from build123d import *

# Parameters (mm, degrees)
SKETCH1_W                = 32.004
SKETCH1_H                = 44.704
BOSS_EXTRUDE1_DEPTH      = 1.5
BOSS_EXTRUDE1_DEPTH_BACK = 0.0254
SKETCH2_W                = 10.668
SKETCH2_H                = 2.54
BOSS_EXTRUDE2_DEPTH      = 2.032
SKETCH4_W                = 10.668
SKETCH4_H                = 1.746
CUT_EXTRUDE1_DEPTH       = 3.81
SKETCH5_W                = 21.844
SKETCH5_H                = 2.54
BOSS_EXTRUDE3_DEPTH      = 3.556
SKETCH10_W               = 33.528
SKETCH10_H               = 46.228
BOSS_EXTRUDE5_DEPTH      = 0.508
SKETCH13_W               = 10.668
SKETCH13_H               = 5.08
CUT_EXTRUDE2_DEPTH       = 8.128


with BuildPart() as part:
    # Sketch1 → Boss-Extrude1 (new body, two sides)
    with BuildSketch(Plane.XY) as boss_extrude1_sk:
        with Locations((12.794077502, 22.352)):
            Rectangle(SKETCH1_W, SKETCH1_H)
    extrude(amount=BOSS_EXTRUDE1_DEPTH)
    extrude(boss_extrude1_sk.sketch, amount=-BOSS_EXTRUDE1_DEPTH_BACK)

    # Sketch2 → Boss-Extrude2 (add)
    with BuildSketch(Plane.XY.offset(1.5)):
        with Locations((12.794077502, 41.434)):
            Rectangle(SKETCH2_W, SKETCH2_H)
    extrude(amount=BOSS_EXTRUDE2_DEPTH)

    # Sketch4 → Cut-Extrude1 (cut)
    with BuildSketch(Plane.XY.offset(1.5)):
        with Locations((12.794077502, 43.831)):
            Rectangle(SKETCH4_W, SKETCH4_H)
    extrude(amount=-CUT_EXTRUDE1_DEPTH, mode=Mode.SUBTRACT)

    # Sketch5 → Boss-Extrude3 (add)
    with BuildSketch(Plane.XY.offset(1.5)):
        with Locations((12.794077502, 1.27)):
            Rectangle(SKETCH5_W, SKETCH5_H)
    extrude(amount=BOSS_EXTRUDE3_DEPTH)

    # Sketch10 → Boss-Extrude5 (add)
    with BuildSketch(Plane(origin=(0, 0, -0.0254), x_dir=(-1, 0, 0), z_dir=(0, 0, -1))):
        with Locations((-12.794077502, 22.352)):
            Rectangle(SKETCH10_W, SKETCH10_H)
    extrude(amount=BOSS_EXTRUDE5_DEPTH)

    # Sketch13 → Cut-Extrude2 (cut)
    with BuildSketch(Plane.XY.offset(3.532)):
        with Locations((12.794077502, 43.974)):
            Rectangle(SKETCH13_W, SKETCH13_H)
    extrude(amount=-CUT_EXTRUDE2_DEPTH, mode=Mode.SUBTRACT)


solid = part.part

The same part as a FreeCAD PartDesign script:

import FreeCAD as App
import Part
import Sketcher
Q = App.Units.Quantity


def add_polygon(sketch, points):
    """Adds a closed chain of lines whose ends are joined by coincident constraints."""
    first, n = sketch.GeometryCount, len(points)
    for a, b in zip(points, points[1:] + points[:1]):
        sketch.addGeometry(Part.LineSegment(App.Vector(*a, 0), App.Vector(*b, 0)), False)
    for i in range(n):
        sketch.addConstraint(Sketcher.Constraint("Coincident", first + i, 2, first + (i + 1) % n, 1))

doc = App.newDocument("Part")
params = doc.addObject("Spreadsheet::Sheet", "Params")
for row, (alias, value) in enumerate([
    ("sketch1_width", "1.26 in"),
    ("sketch1_height", "1.76 in"),
    ("pad1_length", "1.5 mm"),
    ("pad1_length2", "0.001 in"),
    ("sketch2_height", "0.1 in"),
    ("sketch2_width", "0.42 in"),
    ("pad2_length", "0.08 in"),
    ("sketch3_width", "0.42 in"),
    ("pocket1_length", "0.15 in"),
    ("sketch4_height", "0.1 in"),
    ("sketch4_width", "0.86 in"),
    ("pad3_length", "0.14 in"),
    ("sketch5_width", "1.32 in"),
    ("sketch5_height", "1.82 in"),
    ("pad4_length", "0.02 in"),
    ("sketch6_height", "0.2 in"),
    ("sketch6_width", "0.42 in"),
    ("pocket2_length", "0.32 in"),
], start=1):
    params.set(f"A{row}", alias)
    params.set(f"B{row}", "=" + value)
    params.setAlias(f"B{row}", alias)

body = doc.addObject("PartDesign::Body", "Body")

# Sketch on XY plane
sketch1 = body.newObject("Sketcher::SketchObject", "Sketch")
sketch1.AttachmentSupport = (doc.getObject("XY_Plane"), [""])
sketch1.MapMode = "FlatFace"
add_polygon(sketch1, [(-3.207922, 44.704), (-3.207922, 0), (28.796078, 0), (28.796078, 44.704)])  # lines 0-3
sketch1.addConstraint([
    Sketcher.Constraint("Vertical", 0),
    Sketcher.Constraint("Horizontal", 1),
    Sketcher.Constraint("Vertical", 2),
    Sketcher.Constraint("Horizontal", 3),
    Sketcher.Constraint("PointOnObject", 0, 2, -1),
    Sketcher.Constraint("DistanceX", 1, 1, 1, 2, Q("1.26 in")),
    Sketcher.Constraint("DistanceY", 0, 2, 0, 1, Q("1.76 in")),
    Sketcher.Constraint("DistanceX", 0, 2, -1, 1, Q("3.207922 mm")),
])
sketch1.setExpression("Constraints[9]", "Params.sketch1_width")
sketch1.setExpression("Constraints[10]", "Params.sketch1_height")
pad1 = body.newObject("PartDesign::Pad", "Pad")
pad1.Profile = sketch1
pad1.Type = "TwoLengths"
pad1.setExpression("Length", "Params.pad1_length")
pad1.setExpression("Length2", "Params.pad1_length2")

# Sketch on XY plane
sketch2 = body.newObject("Sketcher::SketchObject", "Sketch001")
sketch2.AttachmentSupport = (doc.getObject("XY_Plane"), [""])
sketch2.MapMode = "FlatFace"
sketch2.AttachmentOffset = App.Placement(App.Vector(0, 0, 1.5), App.Rotation())
add_polygon(sketch2, [(7.460078, 42.704), (7.460078, 40.164), (18.128078, 40.164), (18.128078, 42.704)])  # lines 0-3
sketch2.addConstraint([
    Sketcher.Constraint("Vertical", 0),
    Sketcher.Constraint("Horizontal", 1),
    Sketcher.Constraint("Vertical", 2),
    Sketcher.Constraint("Horizontal", 3),
    Sketcher.Constraint("DistanceY", 0, 2, 0, 1, Q("0.1 in")),
    Sketcher.Constraint("DistanceX", 1, 1, 1, 2, Q("0.42 in")),
    Sketcher.Constraint("DistanceY", -1, 1, 0, 2, Q("40.164 mm")),
    Sketcher.Constraint("DistanceX", -1, 1, 0, 2, Q("7.460078 mm")),
])
sketch2.setExpression("Constraints[8]", "Params.sketch2_height")
sketch2.setExpression("Constraints[9]", "Params.sketch2_width")
pad2 = body.newObject("PartDesign::Pad", "Pad001")
pad2.Profile = sketch2
pad2.setExpression("Length", "Params.pad2_length")

# Sketch on XY plane
sketch3 = body.newObject("Sketcher::SketchObject", "Sketch002")
sketch3.AttachmentSupport = (doc.getObject("XY_Plane"), [""])
sketch3.MapMode = "FlatFace"
sketch3.AttachmentOffset = App.Placement(App.Vector(0, 0, 1.5), App.Rotation())
add_polygon(sketch3, [(7.460078, 44.704), (7.460078, 42.958), (18.128078, 42.958), (18.128078, 44.704)])  # lines 0-3
sketch3.addConstraint([
    Sketcher.Constraint("Vertical", 0),
    Sketcher.Constraint("Horizontal", 1),
    Sketcher.Constraint("Vertical", 2),
    Sketcher.Constraint("Horizontal", 3),
    Sketcher.Constraint("DistanceX", 1, 1, 1, 2, Q("0.42 in")),
    Sketcher.Constraint("DistanceY", -1, 1, 2, 2, Q("1.76 in")),
    Sketcher.Constraint("DistanceY", 0, 2, 0, 1, Q("1.746 mm")),
    Sketcher.Constraint("DistanceX", -1, 1, 0, 2, Q("7.460078 mm")),
])
sketch3.setExpression("Constraints[8]", "Params.sketch3_width")
pocket1 = body.newObject("PartDesign::Pocket", "Pocket")
pocket1.Profile = sketch3
pocket1.setExpression("Length", "Params.pocket1_length")

# Sketch on XY plane
sketch4 = body.newObject("Sketcher::SketchObject", "Sketch003")
sketch4.AttachmentSupport = (doc.getObject("XY_Plane"), [""])
sketch4.MapMode = "FlatFace"
sketch4.AttachmentOffset = App.Placement(App.Vector(0, 0, 1.5), App.Rotation())
add_polygon(sketch4, [(1.872078, 2.54), (1.872078, 0), (23.716078, 0), (23.716078, 2.54)])  # lines 0-3
sketch4.addConstraint([
    Sketcher.Constraint("Vertical", 0),
    Sketcher.Constraint("Horizontal", 1),
    Sketcher.Constraint("Vertical", 2),
    Sketcher.Constraint("Horizontal", 3),
    Sketcher.Constraint("PointOnObject", 0, 2, -1),
    Sketcher.Constraint("DistanceY", 0, 2, 0, 1, Q("0.1 in")),
    Sketcher.Constraint("DistanceX", 1, 1, 1, 2, Q("0.86 in")),
    Sketcher.Constraint("DistanceX", -1, 1, 0, 2, Q("1.872078 mm")),
])
sketch4.setExpression("Constraints[9]", "Params.sketch4_height")
sketch4.setExpression("Constraints[10]", "Params.sketch4_width")
pad3 = body.newObject("PartDesign::Pad", "Pad002")
pad3.Profile = sketch4
pad3.setExpression("Length", "Params.pad3_length")

# Sketch on XY plane
sketch5 = body.newObject("Sketcher::SketchObject", "Sketch004")
sketch5.AttachmentSupport = (doc.getObject("XY_Plane"), [""])
sketch5.MapMode = "FlatFace"
sketch5.AttachmentOffset = App.Placement(App.Vector(0, 0, -0.001 * 25.4), App.Rotation())
add_polygon(sketch5, [(29.558078, 45.466), (29.558078, -0.762), (-3.969922, -0.762), (-3.969922, 45.466)])  # lines 0-3
sketch5.addConstraint([
    Sketcher.Constraint("Vertical", 0),
    Sketcher.Constraint("Horizontal", 1),
    Sketcher.Constraint("Vertical", 2),
    Sketcher.Constraint("Horizontal", 3),
    Sketcher.Constraint("DistanceX", 1, 2, 1, 1, Q("1.32 in")),
    Sketcher.Constraint("DistanceY", 0, 2, 0, 1, Q("1.82 in")),
    Sketcher.Constraint("DistanceY", 0, 2, -1, 1, Q("0.03 in")),
    Sketcher.Constraint("DistanceX", -1, 1, 0, 2, Q("29.558078 mm")),
])
sketch5.setExpression("Constraints[8]", "Params.sketch5_width")
sketch5.setExpression("Constraints[9]", "Params.sketch5_height")
pad4 = body.newObject("PartDesign::Pad", "Pad003")
pad4.Profile = sketch5
pad4.setExpression("Length", "Params.pad4_length")
pad4.Reversed = True

# Sketch on XY plane
sketch6 = body.newObject("Sketcher::SketchObject", "Sketch005")
sketch6.AttachmentSupport = (doc.getObject("XY_Plane"), [""])
sketch6.MapMode = "FlatFace"
sketch6.AttachmentOffset = App.Placement(App.Vector(0, 0, 3.532), App.Rotation())
add_polygon(sketch6, [(7.460078, 46.514), (7.460078, 41.434), (18.128078, 41.434), (18.128078, 46.514)])  # lines 0-3
sketch6.addConstraint([
    Sketcher.Constraint("Vertical", 0),
    Sketcher.Constraint("Horizontal", 1),
    Sketcher.Constraint("Vertical", 2),
    Sketcher.Constraint("Horizontal", 3),
    Sketcher.Constraint("DistanceY", 0, 2, 0, 1, Q("0.2 in")),
    Sketcher.Constraint("DistanceX", 1, 1, 1, 2, Q("0.42 in")),
    Sketcher.Constraint("DistanceY", -1, 1, 0, 2, Q("41.434 mm")),
    Sketcher.Constraint("DistanceX", -1, 1, 0, 2, Q("7.460078 mm")),
])
sketch6.setExpression("Constraints[8]", "Params.sketch6_height")
sketch6.setExpression("Constraints[9]", "Params.sketch6_width")
pocket2 = body.newObject("PartDesign::Pocket", "Pocket001")
pocket2.Profile = sketch6
pocket2.setExpression("Length", "Params.pocket2_length")

doc.recompute()
